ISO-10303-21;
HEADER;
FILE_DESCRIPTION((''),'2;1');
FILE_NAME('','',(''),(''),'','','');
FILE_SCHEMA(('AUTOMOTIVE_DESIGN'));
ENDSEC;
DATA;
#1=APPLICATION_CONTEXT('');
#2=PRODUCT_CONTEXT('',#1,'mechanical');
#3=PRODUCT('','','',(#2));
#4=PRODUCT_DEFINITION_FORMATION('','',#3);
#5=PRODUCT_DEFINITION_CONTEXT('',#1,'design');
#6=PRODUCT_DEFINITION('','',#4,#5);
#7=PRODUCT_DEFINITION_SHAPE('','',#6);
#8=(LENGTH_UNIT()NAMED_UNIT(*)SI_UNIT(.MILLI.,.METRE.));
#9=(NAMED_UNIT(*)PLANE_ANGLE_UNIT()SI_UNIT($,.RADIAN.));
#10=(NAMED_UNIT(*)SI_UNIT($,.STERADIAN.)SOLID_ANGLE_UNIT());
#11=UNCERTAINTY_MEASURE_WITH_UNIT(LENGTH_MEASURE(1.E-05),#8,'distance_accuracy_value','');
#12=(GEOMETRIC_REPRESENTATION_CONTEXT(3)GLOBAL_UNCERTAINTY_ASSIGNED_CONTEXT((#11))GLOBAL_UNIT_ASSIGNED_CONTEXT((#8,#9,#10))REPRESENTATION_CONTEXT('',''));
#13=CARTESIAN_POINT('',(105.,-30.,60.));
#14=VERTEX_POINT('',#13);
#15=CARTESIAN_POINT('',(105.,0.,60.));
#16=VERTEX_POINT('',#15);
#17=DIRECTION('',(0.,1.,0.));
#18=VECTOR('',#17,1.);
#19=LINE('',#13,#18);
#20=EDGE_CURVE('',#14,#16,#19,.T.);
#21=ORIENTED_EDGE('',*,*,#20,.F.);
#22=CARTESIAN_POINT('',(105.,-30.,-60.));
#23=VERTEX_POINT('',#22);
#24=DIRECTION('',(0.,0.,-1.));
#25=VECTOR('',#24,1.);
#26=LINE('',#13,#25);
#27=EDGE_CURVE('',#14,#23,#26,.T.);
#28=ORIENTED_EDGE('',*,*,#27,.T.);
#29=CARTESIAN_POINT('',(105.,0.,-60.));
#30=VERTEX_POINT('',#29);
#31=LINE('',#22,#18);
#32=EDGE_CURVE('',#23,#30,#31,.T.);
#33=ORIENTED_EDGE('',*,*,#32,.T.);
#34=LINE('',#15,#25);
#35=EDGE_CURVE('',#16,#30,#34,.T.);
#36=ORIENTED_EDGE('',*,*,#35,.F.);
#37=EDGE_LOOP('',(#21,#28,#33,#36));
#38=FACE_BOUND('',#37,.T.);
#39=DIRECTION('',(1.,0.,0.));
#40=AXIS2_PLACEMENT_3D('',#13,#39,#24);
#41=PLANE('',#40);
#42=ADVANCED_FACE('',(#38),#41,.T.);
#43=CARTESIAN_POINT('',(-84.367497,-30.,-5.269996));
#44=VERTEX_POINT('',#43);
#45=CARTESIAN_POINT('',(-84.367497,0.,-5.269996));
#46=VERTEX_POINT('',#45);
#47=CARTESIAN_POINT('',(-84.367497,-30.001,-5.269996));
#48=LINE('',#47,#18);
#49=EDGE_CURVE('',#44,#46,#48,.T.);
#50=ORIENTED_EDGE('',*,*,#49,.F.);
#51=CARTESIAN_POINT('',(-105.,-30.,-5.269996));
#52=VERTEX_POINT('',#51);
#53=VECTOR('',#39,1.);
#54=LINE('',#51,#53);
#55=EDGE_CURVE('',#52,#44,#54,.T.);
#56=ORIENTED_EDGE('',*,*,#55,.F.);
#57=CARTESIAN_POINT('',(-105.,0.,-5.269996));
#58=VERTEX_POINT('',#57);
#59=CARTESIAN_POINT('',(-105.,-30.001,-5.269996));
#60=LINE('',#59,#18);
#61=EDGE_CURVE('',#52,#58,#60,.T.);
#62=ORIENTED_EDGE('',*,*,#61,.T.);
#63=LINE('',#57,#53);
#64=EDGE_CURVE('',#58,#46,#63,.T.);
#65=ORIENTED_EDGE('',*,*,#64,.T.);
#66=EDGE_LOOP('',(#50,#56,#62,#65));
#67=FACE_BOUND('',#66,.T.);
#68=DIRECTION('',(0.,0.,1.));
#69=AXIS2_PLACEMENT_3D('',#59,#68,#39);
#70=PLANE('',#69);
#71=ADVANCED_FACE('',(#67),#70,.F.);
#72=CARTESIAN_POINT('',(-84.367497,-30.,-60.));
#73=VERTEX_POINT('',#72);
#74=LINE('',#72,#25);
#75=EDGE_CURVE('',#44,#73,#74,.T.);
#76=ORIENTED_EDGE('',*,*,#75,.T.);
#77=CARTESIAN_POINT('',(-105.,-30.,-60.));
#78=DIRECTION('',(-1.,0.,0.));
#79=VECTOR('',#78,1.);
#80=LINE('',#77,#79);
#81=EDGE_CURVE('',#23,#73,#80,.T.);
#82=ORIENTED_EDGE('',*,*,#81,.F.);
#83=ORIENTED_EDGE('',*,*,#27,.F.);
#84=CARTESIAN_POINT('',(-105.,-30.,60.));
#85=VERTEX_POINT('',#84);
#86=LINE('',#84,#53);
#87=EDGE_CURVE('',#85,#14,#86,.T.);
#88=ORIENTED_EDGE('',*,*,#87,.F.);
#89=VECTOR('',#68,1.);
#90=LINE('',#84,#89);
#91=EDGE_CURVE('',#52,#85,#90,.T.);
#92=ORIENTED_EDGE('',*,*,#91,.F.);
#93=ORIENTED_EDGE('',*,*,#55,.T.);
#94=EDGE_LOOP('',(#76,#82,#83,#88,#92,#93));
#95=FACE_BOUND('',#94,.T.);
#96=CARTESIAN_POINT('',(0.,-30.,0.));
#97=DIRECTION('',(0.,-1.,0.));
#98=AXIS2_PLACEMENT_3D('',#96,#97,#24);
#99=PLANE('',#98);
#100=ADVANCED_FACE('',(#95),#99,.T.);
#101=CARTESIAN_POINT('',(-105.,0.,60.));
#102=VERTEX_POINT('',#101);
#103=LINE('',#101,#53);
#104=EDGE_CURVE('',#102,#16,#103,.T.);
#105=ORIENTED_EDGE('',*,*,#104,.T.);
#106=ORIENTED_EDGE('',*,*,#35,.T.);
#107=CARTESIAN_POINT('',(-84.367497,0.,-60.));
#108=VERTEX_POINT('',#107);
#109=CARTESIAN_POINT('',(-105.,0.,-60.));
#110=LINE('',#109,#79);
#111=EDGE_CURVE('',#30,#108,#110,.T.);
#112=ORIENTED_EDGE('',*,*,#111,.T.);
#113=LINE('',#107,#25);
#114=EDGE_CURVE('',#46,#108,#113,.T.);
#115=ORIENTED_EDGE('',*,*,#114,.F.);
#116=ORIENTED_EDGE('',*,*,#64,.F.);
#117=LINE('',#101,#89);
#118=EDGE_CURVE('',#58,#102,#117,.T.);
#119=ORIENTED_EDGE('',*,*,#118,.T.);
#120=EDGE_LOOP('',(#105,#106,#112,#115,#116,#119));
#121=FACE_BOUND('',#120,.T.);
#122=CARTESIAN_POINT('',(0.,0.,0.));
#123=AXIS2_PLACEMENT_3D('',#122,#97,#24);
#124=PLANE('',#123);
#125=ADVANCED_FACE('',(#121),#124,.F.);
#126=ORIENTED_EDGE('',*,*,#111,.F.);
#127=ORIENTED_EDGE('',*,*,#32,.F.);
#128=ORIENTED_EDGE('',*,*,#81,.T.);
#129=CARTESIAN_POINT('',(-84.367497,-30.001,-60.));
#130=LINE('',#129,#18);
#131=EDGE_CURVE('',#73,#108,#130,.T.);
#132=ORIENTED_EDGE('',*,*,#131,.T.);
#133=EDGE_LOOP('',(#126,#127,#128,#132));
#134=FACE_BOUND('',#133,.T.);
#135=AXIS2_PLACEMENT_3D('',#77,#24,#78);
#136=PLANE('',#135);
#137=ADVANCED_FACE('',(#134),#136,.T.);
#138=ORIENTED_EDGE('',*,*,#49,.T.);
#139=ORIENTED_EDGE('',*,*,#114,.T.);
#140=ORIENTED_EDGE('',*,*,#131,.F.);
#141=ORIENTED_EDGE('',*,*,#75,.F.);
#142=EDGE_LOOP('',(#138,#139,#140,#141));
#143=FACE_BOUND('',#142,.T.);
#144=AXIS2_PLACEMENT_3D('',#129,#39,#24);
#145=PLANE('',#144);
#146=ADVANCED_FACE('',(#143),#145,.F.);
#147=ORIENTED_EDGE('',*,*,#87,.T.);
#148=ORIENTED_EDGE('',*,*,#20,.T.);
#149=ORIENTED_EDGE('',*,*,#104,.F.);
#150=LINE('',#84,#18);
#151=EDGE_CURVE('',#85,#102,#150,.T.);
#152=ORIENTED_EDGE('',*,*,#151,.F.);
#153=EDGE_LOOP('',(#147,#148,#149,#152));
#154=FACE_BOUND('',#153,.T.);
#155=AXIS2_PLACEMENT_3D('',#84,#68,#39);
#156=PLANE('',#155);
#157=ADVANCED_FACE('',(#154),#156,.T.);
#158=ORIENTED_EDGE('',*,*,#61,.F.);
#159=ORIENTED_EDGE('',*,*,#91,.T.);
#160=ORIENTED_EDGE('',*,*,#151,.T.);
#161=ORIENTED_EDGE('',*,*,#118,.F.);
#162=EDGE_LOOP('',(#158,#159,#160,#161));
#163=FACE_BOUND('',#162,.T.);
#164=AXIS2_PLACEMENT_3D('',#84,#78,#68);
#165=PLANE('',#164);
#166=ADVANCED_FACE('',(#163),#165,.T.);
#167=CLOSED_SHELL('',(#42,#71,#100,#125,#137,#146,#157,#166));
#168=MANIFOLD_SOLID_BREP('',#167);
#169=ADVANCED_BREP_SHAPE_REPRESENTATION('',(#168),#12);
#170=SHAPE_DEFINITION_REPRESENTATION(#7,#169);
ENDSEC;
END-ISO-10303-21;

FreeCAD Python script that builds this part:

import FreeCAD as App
import Part
import Sketcher

doc = App.newDocument("Part")
body = doc.addObject("PartDesign::Body", "Body")

# Sketch on XZ plane
sketch1 = body.newObject("Sketcher::SketchObject", "Sketch")
sketch1.AttachmentSupport = (doc.getObject("XZ_Plane"), [""])
sketch1.MapMode = "FlatFace"
sketch1.addGeometry([
    Part.LineSegment(App.Vector(-105, -60, 0), App.Vector(-105, 60, 0)),
    Part.LineSegment(App.Vector(-105, 60, 0), App.Vector(105, 60, 0)),
    Part.LineSegment(App.Vector(105, 60, 0), App.Vector(105, -60, 0)),
    Part.LineSegment(App.Vector(105, -60, 0), App.Vector(-105, -60, 0)),
], False)
sketch1.addConstraint([
    Sketcher.Constraint("Coincident", 0, 2, 1, 1),
    Sketcher.Constraint("Coincident", 1, 2, 2, 1),
    Sketcher.Constraint("Coincident", 2, 2, 3, 1),
    Sketcher.Constraint("Coincident", 3, 2, 0, 1),
    Sketcher.Constraint("Vertical", 0),
    Sketcher.Constraint("Horizontal", 1),
    Sketcher.Constraint("Vertical", 2),
    Sketcher.Constraint("Horizontal", 3),
    Sketcher.Constraint("Symmetric", 0, 2, 2, 2, -1, 1),
    Sketcher.Constraint("DistanceX", 1, 1, 1, 2, 210.0),
    Sketcher.Constraint("DistanceY", 0, 1, 0, 2, 120.0),
])
pad1 = body.newObject("PartDesign::Pad", "Pad")
pad1.Profile = sketch1
pad1.Length = 30

# Sketch on XZ plane
sketch2 = body.newObject("Sketcher::SketchObject", "Sketch001")
sketch2.AttachmentSupport = (doc.getObject("XZ_Plane"), [""])
sketch2.MapMode = "FlatFace"
sketch2.addGeometry([
    Part.LineSegment(App.Vector(-105, -60, 0), App.Vector(-105, -5, 0)),
    Part.LineSegment(App.Vector(-105, -5, 0), App.Vector(-84, -5, 0)),
    Part.LineSegment(App.Vector(-84, -5, 0), App.Vector(-84, -60, 0)),
    Part.LineSegment(App.Vector(-84, -60, 0), App.Vector(-105, -60, 0)),
], False)
sketch2.addConstraint([
    Sketcher.Constraint("Coincident", 0, 2, 1, 1),
    Sketcher.Constraint("Coincident", 1, 2, 2, 1),
    Sketcher.Constraint("Coincident", 2, 2, 3, 1),
    Sketcher.Constraint("Coincident", 3, 2, 0, 1),
    Sketcher.Constraint("Vertical", 0),
    Sketcher.Constraint("Horizontal", 1),
    Sketcher.Constraint("Vertical", 2),
    Sketcher.Constraint("Horizontal", 3),
    Sketcher.Constraint("DistanceX", 0, 2, -1, 1, 105.0),
    Sketcher.Constraint("DistanceY", 2, 2, -1, 1, 60.0),
    Sketcher.Constraint("DistanceX", 1, 1, 1, 2, 20.632503),
    Sketcher.Constraint("DistanceY", 0, 1, 0, 2, 54.730004),
])
pocket1 = body.newObject("PartDesign::Pocket", "Pocket")
pocket1.Profile = sketch2
pocket1.Type = "UpToFirst"
pocket1.Reversed = True

doc.recompute()
